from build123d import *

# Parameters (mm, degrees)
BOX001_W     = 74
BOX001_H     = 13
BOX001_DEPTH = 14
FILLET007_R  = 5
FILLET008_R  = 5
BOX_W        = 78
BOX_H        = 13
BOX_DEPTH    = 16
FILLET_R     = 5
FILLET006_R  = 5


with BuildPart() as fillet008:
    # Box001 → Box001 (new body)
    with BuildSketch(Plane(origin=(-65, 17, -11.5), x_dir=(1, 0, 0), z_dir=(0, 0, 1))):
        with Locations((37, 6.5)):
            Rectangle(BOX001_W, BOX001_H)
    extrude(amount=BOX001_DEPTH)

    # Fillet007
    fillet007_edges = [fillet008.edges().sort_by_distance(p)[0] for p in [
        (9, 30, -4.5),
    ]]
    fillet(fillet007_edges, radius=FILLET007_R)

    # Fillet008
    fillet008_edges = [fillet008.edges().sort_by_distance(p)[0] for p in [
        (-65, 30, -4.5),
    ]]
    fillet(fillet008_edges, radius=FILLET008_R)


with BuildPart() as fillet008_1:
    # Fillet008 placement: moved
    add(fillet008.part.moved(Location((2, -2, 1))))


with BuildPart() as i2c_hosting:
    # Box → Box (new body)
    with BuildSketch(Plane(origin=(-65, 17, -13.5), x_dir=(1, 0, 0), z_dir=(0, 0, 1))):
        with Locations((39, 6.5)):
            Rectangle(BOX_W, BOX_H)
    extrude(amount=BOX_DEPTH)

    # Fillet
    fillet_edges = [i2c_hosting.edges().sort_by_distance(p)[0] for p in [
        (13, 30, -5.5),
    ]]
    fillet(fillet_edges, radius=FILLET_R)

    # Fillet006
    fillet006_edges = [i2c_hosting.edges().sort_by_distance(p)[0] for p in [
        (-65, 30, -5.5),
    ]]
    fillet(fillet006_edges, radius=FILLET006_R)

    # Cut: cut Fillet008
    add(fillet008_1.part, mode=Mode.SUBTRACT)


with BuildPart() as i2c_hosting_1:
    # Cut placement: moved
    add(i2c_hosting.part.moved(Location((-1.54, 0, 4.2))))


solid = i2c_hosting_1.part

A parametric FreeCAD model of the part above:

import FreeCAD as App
import Part
import Sketcher
from FreeCAD import Vector


def edges_at(feature, points):
    """Names of the edges that pass closest to the given points."""
    edges = feature.Shape.Edges
    near = lambda p: min(range(len(edges)), key=lambda i: edges[i].distToShape(Part.Vertex(*p))[0])
    return sorted({f"Edge{near(p) + 1}" for p in points})


def add_polygon(sketch, points):
    """Adds a closed chain of lines whose ends are joined by coincident constraints."""
    first, n = sketch.GeometryCount, len(points)
    for a, b in zip(points, points[1:] + points[:1]):
        sketch.addGeometry(Part.LineSegment(App.Vector(*a, 0), App.Vector(*b, 0)), False)
    for i in range(n):
        sketch.addConstraint(Sketcher.Constraint("Coincident", first + i, 2, first + (i + 1) % n, 1))

doc = App.newDocument("Part")
body = doc.addObject("PartDesign::Body", "Body")

# Sketch on XY plane
sketch1 = body.newObject("Sketcher::SketchObject", "Sketch")
sketch1.AttachmentSupport = (doc.getObject("XY_Plane"), [""])
sketch1.MapMode = "FlatFace"
sketch1.AttachmentOffset = App.Placement(Vector(0, 0, -11.5), App.Rotation())
add_polygon(sketch1, [(-65, 30), (-65, 17), (9, 17), (9, 30)])  # lines 0-3
sketch1.addConstraint(Sketcher.Constraint("Vertical", 0))
sketch1.addConstraint(Sketcher.Constraint("Horizontal", 1))
sketch1.addConstraint(Sketcher.Constraint("Vertical", 2))
sketch1.addConstraint(Sketcher.Constraint("Horizontal", 3))
sketch1.addConstraint(Sketcher.Constraint("DistanceX", 1, 1, 1, 2, 74.0))
sketch1.addConstraint(Sketcher.Constraint("DistanceY", 0, 2, 0, 1, 13.0))
sketch1.addConstraint(Sketcher.Constraint("DistanceX", 0, 2, -1, 1, 65.0))
sketch1.addConstraint(Sketcher.Constraint("DistanceY", -1, 1, 0, 2, 17.0))
pad1 = body.newObject("PartDesign::Pad", "Pad")
pad1.Profile = sketch1
pad1.Length = 14
doc.recompute()

fillet = body.newObject("PartDesign::Fillet", "Fillet")
fillet.Base = (pad1, edges_at(pad1, [(9, 30, -4.5)]))
fillet.Radius = 5
doc.recompute()

fillet2 = body.newObject("PartDesign::Fillet", "Fillet001")
fillet2.Base = (fillet, edges_at(fillet, [(-65, 30, -4.5)]))
fillet2.Radius = 5
body2 = doc.addObject("PartDesign::Body", "Body001")
doc.recompute()

body.Placement = App.Placement(Vector(2, -2, 1), App.Rotation(Vector(0, 0, 1), 0))
boolean = body2.newObject("PartDesign::Boolean", "Boolean")
boolean.Type = "Fuse"
boolean.addObjects([body])
body3 = doc.addObject("PartDesign::Body", "Body002")

# Sketch on XY plane
sketch2 = body3.newObject("Sketcher::SketchObject", "Sketch001")
sketch2.AttachmentSupport = (doc.getObject("XY_Plane002"), [""])
sketch2.MapMode = "FlatFace"
sketch2.AttachmentOffset = App.Placement(Vector(0, 0, -13.5), App.Rotation())
add_polygon(sketch2, [(-65, 30), (-65, 17), (13, 17), (13, 30)])  # lines 0-3
sketch2.addConstraint(Sketcher.Constraint("Vertical", 0))
sketch2.addConstraint(Sketcher.Constraint("Horizontal", 1))
sketch2.addConstraint(Sketcher.Constraint("Vertical", 2))
sketch2.addConstraint(Sketcher.Constraint("Horizontal", 3))
sketch2.addConstraint(Sketcher.Constraint("DistanceX", 1, 1, 1, 2, 78.0))
sketch2.addConstraint(Sketcher.Constraint("DistanceY", 0, 2, 0, 1, 13.0))
sketch2.addConstraint(Sketcher.Constraint("DistanceX", 0, 2, -1, 1, 65.0))
sketch2.addConstraint(Sketcher.Constraint("DistanceY", -1, 1, 0, 2, 17.0))
pad2 = body3.newObject("PartDesign::Pad", "Pad001")
pad2.Profile = sketch2
pad2.Length = 16
doc.recompute()

fillet3 = body3.newObject("PartDesign::Fillet", "Fillet002")
fillet3.Base = (pad2, edges_at(pad2, [(13, 30, -5.5)]))
fillet3.Radius = 5
doc.recompute()

fillet4 = body3.newObject("PartDesign::Fillet", "Fillet003")
fillet4.Base = (fillet3, edges_at(fillet3, [(-65, 30, -5.5)]))
fillet4.Radius = 5
doc.recompute()

boolean2 = body3.newObject("PartDesign::Boolean", "Boolean001")
boolean2.Type = "Cut"
boolean2.addObjects([body2])
body4 = doc.addObject("PartDesign::Body", "Body003")
doc.recompute()

body3.Placement = App.Placement(Vector(-1.54, 0, 4.2), App.Rotation(Vector(0, 0, 1), 0))
boolean3 = body4.newObject("PartDesign::Boolean", "Boolean002")
boolean3.Type = "Fuse"
boolean3.addObjects([body3])

doc.recompute()
